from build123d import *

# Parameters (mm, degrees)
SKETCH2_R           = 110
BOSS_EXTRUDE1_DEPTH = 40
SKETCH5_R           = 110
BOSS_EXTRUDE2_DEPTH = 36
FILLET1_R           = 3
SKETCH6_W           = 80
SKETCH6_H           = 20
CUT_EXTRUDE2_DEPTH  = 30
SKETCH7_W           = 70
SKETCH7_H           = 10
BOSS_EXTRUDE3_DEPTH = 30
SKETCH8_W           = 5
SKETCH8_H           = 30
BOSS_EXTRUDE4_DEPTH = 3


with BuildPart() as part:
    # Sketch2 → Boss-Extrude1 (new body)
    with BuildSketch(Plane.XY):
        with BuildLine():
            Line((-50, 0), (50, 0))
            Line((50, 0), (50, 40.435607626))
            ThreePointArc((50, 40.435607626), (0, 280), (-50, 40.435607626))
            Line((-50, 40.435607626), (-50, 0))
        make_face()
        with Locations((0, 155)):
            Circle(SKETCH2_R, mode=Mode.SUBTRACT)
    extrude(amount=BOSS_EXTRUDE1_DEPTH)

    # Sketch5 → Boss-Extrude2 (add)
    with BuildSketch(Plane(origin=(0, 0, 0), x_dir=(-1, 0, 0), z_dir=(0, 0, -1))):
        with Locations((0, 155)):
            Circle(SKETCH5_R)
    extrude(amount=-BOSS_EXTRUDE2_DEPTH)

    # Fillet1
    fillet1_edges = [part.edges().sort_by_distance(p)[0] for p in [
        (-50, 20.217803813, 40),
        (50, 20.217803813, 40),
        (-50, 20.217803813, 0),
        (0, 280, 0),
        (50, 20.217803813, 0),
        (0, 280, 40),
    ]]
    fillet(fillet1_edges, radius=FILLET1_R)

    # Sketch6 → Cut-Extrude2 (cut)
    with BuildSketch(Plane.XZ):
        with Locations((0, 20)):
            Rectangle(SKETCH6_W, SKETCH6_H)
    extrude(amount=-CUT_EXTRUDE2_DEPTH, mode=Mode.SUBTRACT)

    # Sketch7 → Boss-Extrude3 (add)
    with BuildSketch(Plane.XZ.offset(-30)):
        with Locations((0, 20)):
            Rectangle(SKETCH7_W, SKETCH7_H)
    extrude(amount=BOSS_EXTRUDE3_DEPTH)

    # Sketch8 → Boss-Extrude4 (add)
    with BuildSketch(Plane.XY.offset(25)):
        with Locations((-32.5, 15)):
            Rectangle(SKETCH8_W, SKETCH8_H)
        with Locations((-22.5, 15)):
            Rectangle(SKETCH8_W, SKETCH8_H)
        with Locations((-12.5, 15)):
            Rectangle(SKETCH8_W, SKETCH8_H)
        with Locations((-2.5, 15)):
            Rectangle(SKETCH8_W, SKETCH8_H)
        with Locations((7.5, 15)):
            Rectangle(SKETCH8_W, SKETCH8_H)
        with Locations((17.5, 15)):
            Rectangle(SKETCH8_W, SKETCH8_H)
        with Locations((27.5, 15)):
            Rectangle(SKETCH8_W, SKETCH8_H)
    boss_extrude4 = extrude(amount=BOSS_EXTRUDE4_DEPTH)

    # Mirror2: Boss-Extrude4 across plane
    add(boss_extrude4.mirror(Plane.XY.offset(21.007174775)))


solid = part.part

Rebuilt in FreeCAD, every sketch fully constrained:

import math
import FreeCAD as App
import Part
import Sketcher
from FreeCAD import Vector
Q = App.Units.Quantity


def edges_at(feature, points):
    """Names of the edges that pass closest to the given points."""
    edges = feature.Shape.Edges
    near = lambda p: min(range(len(edges)), key=lambda i: edges[i].distToShape(Part.Vertex(*p))[0])
    return sorted({f"Edge{near(p) + 1}" for p in points})

doc = App.newDocument("Part")
body = doc.addObject("PartDesign::Body", "Body")

sketch1 = body.newObject("Sketcher::SketchObject", "Sketch")
sketch1.AttachmentSupport = (doc.getObject("XY_Plane"), [""])
sketch1.MapMode = "FlatFace"
sketch1.addGeometry(Part.LineSegment(Vector(-50, 0, 0), Vector(50, 0, 0)), False)
sketch1.addGeometry(Part.LineSegment(Vector(50, 0, 0), Vector(50, 40.435608, 0)), False)
sketch1.addGeometry(Part.ArcOfCircle(Part.Circle(Vector(0, 155, 0), Vector(0, 0, 1), 125), math.radians(-66.421822), math.radians(246.421822)), False)
sketch1.addGeometry(Part.LineSegment(Vector(-50, 40.435608, 0), Vector(-50, 0, 0)), False)
sketch1.addGeometry(Part.Circle(Vector(0, 155, 0), Vector(0, 0, 1), 110), False)
sketch1.addConstraint(Sketcher.Constraint("Coincident", 0, 2, 1, 1))
sketch1.addConstraint(Sketcher.Constraint("Coincident", 1, 2, 2, 1))
sketch1.addConstraint(Sketcher.Constraint("Coincident", 2, 2, 3, 1))
sketch1.addConstraint(Sketcher.Constraint("Coincident", 3, 2, 0, 1))
sketch1.addConstraint(Sketcher.Constraint("Horizontal", 0))
sketch1.addConstraint(Sketcher.Constraint("Vertical", 1))
sketch1.addConstraint(Sketcher.Constraint("Vertical", 3))
sketch1.addConstraint(Sketcher.Constraint("Coincident", 4, 3, 2, 3))
sketch1.addConstraint(Sketcher.Constraint("Symmetric", 0, 2, 3, 2, -1, 1))
sketch1.addConstraint(Sketcher.Constraint("PointOnObject", 2, 3, -2))
sketch1.addConstraint(Sketcher.Constraint("Diameter", 4, Q("220 mm")))
sketch1.addConstraint(Sketcher.Constraint("Radius", 2, Q("125 mm")))
sketch1.addConstraint(Sketcher.Constraint("DistanceX", 0, 1, 0, 2, Q("100 mm")))
sketch1.addConstraint(Sketcher.Constraint("DistanceY", -1, 1, 2, 3, Q("155 mm")))
pad1 = body.newObject("PartDesign::Pad", "Pad")
pad1.Profile = sketch1
pad1.Length = 40

sketch2 = body.newObject("Sketcher::SketchObject", "Sketch001")
sketch2.AttachmentSupport = (doc.getObject("XY_Plane"), [""])
sketch2.MapMode = "FlatFace"
sketch2.addGeometry(Part.Circle(Vector(0, 155, 0), Vector(0, 0, 1), 110), False)
sketch2.addConstraint(Sketcher.Constraint("PointOnObject", 0, 3, -2))
sketch2.addConstraint(Sketcher.Constraint("Diameter", 0, Q("220 mm")))
sketch2.addConstraint(Sketcher.Constraint("DistanceY", -1, 1, 0, 3, Q("155 mm")))
pad2 = body.newObject("PartDesign::Pad", "Pad001")
pad2.Profile = sketch2
pad2.Length = 36
doc.recompute()

fillet = body.newObject("PartDesign::Fillet", "Fillet")
fillet.Base = (pad2, edges_at(pad2, [
    (-50, 20.218, 40),
    (50, 20.218, 40),
    (-50, 20.218, 0),
    (0, 280, 0),
    (50, 20.218, 0),
    (0, 280, 40),
]))
fillet.Radius = 3

sketch3 = body.newObject("Sketcher::SketchObject", "Sketch002")
sketch3.AttachmentSupport = (doc.getObject("XZ_Plane"), [""])
sketch3.MapMode = "FlatFace"
sketch3.addGeometry(Part.LineSegment(Vector(-40, 30, 0), Vector(-40, 10, 0)), False)
sketch3.addGeometry(Part.LineSegment(Vector(-40, 10, 0), Vector(40, 10, 0)), False)
sketch3.addGeometry(Part.LineSegment(Vector(40, 10, 0), Vector(40, 30, 0)), False)
sketch3.addGeometry(Part.LineSegment(Vector(40, 30, 0), Vector(-40, 30, 0)), False)
sketch3.addConstraint(Sketcher.Constraint("Coincident", 0, 2, 1, 1))
sketch3.addConstraint(Sketcher.Constraint("Coincident", 1, 2, 2, 1))
sketch3.addConstraint(Sketcher.Constraint("Coincident", 2, 2, 3, 1))
sketch3.addConstraint(Sketcher.Constraint("Coincident", 3, 2, 0, 1))
sketch3.addConstraint(Sketcher.Constraint("Vertical", 0))
sketch3.addConstraint(Sketcher.Constraint("Horizontal", 1))
sketch3.addConstraint(Sketcher.Constraint("Vertical", 2))
sketch3.addConstraint(Sketcher.Constraint("Horizontal", 3))
sketch3.addConstraint(Sketcher.Constraint("DistanceX", 1, 1, 1, 2, Q("80 mm")))
sketch3.addConstraint(Sketcher.Constraint("DistanceY", 0, 2, 0, 1, Q("20 mm")))
sketch3.addConstraint(Sketcher.Constraint("DistanceX", 0, 2, -1, 1, Q("40 mm")))
sketch3.addConstraint(Sketcher.Constraint("DistanceY", -1, 1, 0, 2, Q("10 mm")))
pocket1 = body.newObject("PartDesign::Pocket", "Pocket")
pocket1.Profile = sketch3
pocket1.Length = 30

sketch4 = body.newObject("Sketcher::SketchObject", "Sketch003")
sketch4.AttachmentSupport = (doc.getObject("XZ_Plane"), [""])
sketch4.MapMode = "FlatFace"
sketch4.AttachmentOffset = App.Placement(Vector(0, 0, -30), App.Rotation())
sketch4.addGeometry(Part.LineSegment(Vector(-35, 25, 0), Vector(-35, 15, 0)), False)
sketch4.addGeometry(Part.LineSegment(Vector(-35, 15, 0), Vector(35, 15, 0)), False)
sketch4.addGeometry(Part.LineSegment(Vector(35, 15, 0), Vector(35, 25, 0)), False)
sketch4.addGeometry(Part.LineSegment(Vector(35, 25, 0), Vector(-35, 25, 0)), False)
sketch4.addConstraint(Sketcher.Constraint("Coincident", 0, 2, 1, 1))
sketch4.addConstraint(Sketcher.Constraint("Coincident", 1, 2, 2, 1))
sketch4.addConstraint(Sketcher.Constraint("Coincident", 2, 2, 3, 1))
sketch4.addConstraint(Sketcher.Constraint("Coincident", 3, 2, 0, 1))
sketch4.addConstraint(Sketcher.Constraint("Vertical", 0))
sketch4.addConstraint(Sketcher.Constraint("Horizontal", 1))
sketch4.addConstraint(Sketcher.Constraint("Vertical", 2))
sketch4.addConstraint(Sketcher.Constraint("Horizontal", 3))
sketch4.addConstraint(Sketcher.Constraint("DistanceX", 1, 1, 1, 2, Q("70 mm")))
sketch4.addConstraint(Sketcher.Constraint("DistanceY", 0, 2, 0, 1, Q("10 mm")))
sketch4.addConstraint(Sketcher.Constraint("DistanceX", 0, 2, -1, 1, Q("35 mm")))
sketch4.addConstraint(Sketcher.Constraint("DistanceY", -1, 1, 0, 2, Q("15 mm")))
pad3 = body.newObject("PartDesign::Pad", "Pad002")
pad3.Profile = sketch4
pad3.Length = 30

sketch5 = body.newObject("Sketcher::SketchObject", "Sketch004")
sketch5.AttachmentSupport = (doc.getObject("XY_Plane"), [""])
sketch5.MapMode = "FlatFace"
sketch5.AttachmentOffset = App.Placement(Vector(0, 0, 25), App.Rotation())
sketch5.addGeometry(Part.LineSegment(Vector(-35, 30, 0), Vector(-35, 0, 0)), False)
sketch5.addGeometry(Part.LineSegment(Vector(-35, 0, 0), Vector(-30, 0, 0)), False)
sketch5.addGeometry(Part.LineSegment(Vector(-30, 0, 0), Vector(-30, 30, 0)), False)
sketch5.addGeometry(Part.LineSegment(Vector(-30, 30, 0), Vector(-35, 30, 0)), False)
sketch5.addGeometry(Part.LineSegment(Vector(-25, 30, 0), Vector(-25, 0, 0)), False)
sketch5.addGeometry(Part.LineSegment(Vector(-25, 0, 0), Vector(-20, 0, 0)), False)
sketch5.addGeometry(Part.LineSegment(Vector(-20, 0, 0), Vector(-20, 30, 0)), False)
sketch5.addGeometry(Part.LineSegment(Vector(-20, 30, 0), Vector(-25, 30, 0)), False)
sketch5.addGeometry(Part.LineSegment(Vector(-15, 30, 0), Vector(-15, 0, 0)), False)
sketch5.addGeometry(Part.LineSegment(Vector(-15, 0, 0), Vector(-10, 0, 0)), False)
sketch5.addGeometry(Part.LineSegment(Vector(-10, 0, 0), Vector(-10, 30, 0)), False)
sketch5.addGeometry(Part.LineSegment(Vector(-10, 30, 0), Vector(-15, 30, 0)), False)
sketch5.addGeometry(Part.LineSegment(Vector(-5, 30, 0), Vector(-5, 0, 0)), False)
sketch5.addGeometry(Part.LineSegment(Vector(-5, 0, 0), Vector(0, 0, 0)), False)
sketch5.addGeometry(Part.LineSegment(Vector(0, 0, 0), Vector(0, 30, 0)), False)
sketch5.addGeometry(Part.LineSegment(Vector(0, 30, 0), Vector(-5, 30, 0)), False)
sketch5.addGeometry(Part.LineSegment(Vector(5, 30, 0), Vector(5, 0, 0)), False)
sketch5.addGeometry(Part.LineSegment(Vector(5, 0, 0), Vector(10, 0, 0)), False)
sketch5.addGeometry(Part.LineSegment(Vector(10, 0, 0), Vector(10, 30, 0)), False)
sketch5.addGeometry(Part.LineSegment(Vector(10, 30, 0), Vector(5, 30, 0)), False)
sketch5.addGeometry(Part.LineSegment(Vector(15, 30, 0), Vector(15, 0, 0)), False)
sketch5.addGeometry(Part.LineSegment(Vector(15, 0, 0), Vector(20, 0, 0)), False)
sketch5.addGeometry(Part.LineSegment(Vector(20, 0, 0), Vector(20, 30, 0)), False)
sketch5.addGeometry(Part.LineSegment(Vector(20, 30, 0), Vector(15, 30, 0)), False)
sketch5.addGeometry(Part.LineSegment(Vector(25, 30, 0), Vector(25, 0, 0)), False)
sketch5.addGeometry(Part.LineSegment(Vector(25, 0, 0), Vector(30, 0, 0)), False)
sketch5.addGeometry(Part.LineSegment(Vector(30, 0, 0), Vector(30, 30, 0)), False)
sketch5.addGeometry(Part.LineSegment(Vector(30, 30, 0), Vector(25, 30, 0)), False)
sketch5.addConstraint(Sketcher.Constraint("Coincident", 0, 2, 1, 1))
sketch5.addConstraint(Sketcher.Constraint("Coincident", 1, 2, 2, 1))
sketch5.addConstraint(Sketcher.Constraint("Coincident", 2, 2, 3, 1))
sketch5.addConstraint(Sketcher.Constraint("Coincident", 3, 2, 0, 1))
sketch5.addConstraint(Sketcher.Constraint("Coincident", 4, 2, 5, 1))
sketch5.addConstraint(Sketcher.Constraint("Coincident", 5, 2, 6, 1))
sketch5.addConstraint(Sketcher.Constraint("Coincident", 6, 2, 7, 1))
sketch5.addConstraint(Sketcher.Constraint("Coincident", 7, 2, 4, 1))
sketch5.addConstraint(Sketcher.Constraint("Coincident", 8, 2, 9, 1))
sketch5.addConstraint(Sketcher.Constraint("Coincident", 9, 2, 10, 1))
sketch5.addConstraint(Sketcher.Constraint("Coincident", 10, 2, 11, 1))
sketch5.addConstraint(Sketcher.Constraint("Coincident", 11, 2, 8, 1))
sketch5.addConstraint(Sketcher.Constraint("Coincident", 12, 2, 13, 1))
sketch5.addConstraint(Sketcher.Constraint("Coincident", 13, 2, 14, 1))
sketch5.addConstraint(Sketcher.Constraint("Coincident", 14, 2, 15, 1))
sketch5.addConstraint(Sketcher.Constraint("Coincident", 15, 2, 12, 1))
sketch5.addConstraint(Sketcher.Constraint("Coincident", 16, 2, 17, 1))
sketch5.addConstraint(Sketcher.Constraint("Coincident", 17, 2, 18, 1))
sketch5.addConstraint(Sketcher.Constraint("Coincident", 18, 2, 19, 1))
sketch5.addConstraint(Sketcher.Constraint("Coincident", 19, 2, 16, 1))
sketch5.addConstraint(Sketcher.Constraint("Coincident", 20, 2, 21, 1))
sketch5.addConstraint(Sketcher.Constraint("Coincident", 21, 2, 22, 1))
sketch5.addConstraint(Sketcher.Constraint("Coincident", 22, 2, 23, 1))
sketch5.addConstraint(Sketcher.Constraint("Coincident", 23, 2, 20, 1))
sketch5.addConstraint(Sketcher.Constraint("Coincident", 24, 2, 25, 1))
sketch5.addConstraint(Sketcher.Constraint("Coincident", 25, 2, 26, 1))
sketch5.addConstraint(Sketcher.Constraint("Coincident", 26, 2, 27, 1))
sketch5.addConstraint(Sketcher.Constraint("Coincident", 27, 2, 24, 1))
sketch5.addConstraint(Sketcher.Constraint("Vertical", 0))
sketch5.addConstraint(Sketcher.Constraint("Horizontal", 1))
sketch5.addConstraint(Sketcher.Constraint("Vertical", 2))
sketch5.addConstraint(Sketcher.Constraint("Horizontal", 3))
sketch5.addConstraint(Sketcher.Constraint("Vertical", 4))
sketch5.addConstraint(Sketcher.Constraint("Horizontal", 5))
sketch5.addConstraint(Sketcher.Constraint("Vertical", 6))
sketch5.addConstraint(Sketcher.Constraint("Horizontal", 7))
sketch5.addConstraint(Sketcher.Constraint("Vertical", 8))
sketch5.addConstraint(Sketcher.Constraint("Horizontal", 9))
sketch5.addConstraint(Sketcher.Constraint("Vertical", 10))
sketch5.addConstraint(Sketcher.Constraint("Horizontal", 11))
sketch5.addConstraint(Sketcher.Constraint("Vertical", 12))
sketch5.addConstraint(Sketcher.Constraint("Horizontal", 13))
sketch5.addConstraint(Sketcher.Constraint("Vertical", 14))
sketch5.addConstraint(Sketcher.Constraint("Horizontal", 15))
sketch5.addConstraint(Sketcher.Constraint("Vertical", 16))
sketch5.addConstraint(Sketcher.Constraint("Horizontal", 17))
sketch5.addConstraint(Sketcher.Constraint("Vertical", 18))
sketch5.addConstraint(Sketcher.Constraint("Horizontal", 19))
sketch5.addConstraint(Sketcher.Constraint("Vertical", 20))
sketch5.addConstraint(Sketcher.Constraint("Horizontal", 21))
sketch5.addConstraint(Sketcher.Constraint("Vertical", 22))
sketch5.addConstraint(Sketcher.Constraint("Horizontal", 23))
sketch5.addConstraint(Sketcher.Constraint("Vertical", 24))
sketch5.addConstraint(Sketcher.Constraint("Horizontal", 25))
sketch5.addConstraint(Sketcher.Constraint("Vertical", 26))
sketch5.addConstraint(Sketcher.Constraint("Horizontal", 27))
sketch5.addConstraint(Sketcher.Constraint("Coincident", 13, 2, -1, 1))
sketch5.addConstraint(Sketcher.Constraint("Symmetric", 12, 2, 16, 2, -1, 1))
sketch5.addConstraint(Sketcher.Constraint("Symmetric", 9, 2, 17, 2, -1, 1))
sketch5.addConstraint(Sketcher.Constraint("Symmetric", 8, 2, 20, 2, -1, 1))
sketch5.addConstraint(Sketcher.Constraint("Symmetric", 5, 2, 21, 2, -1, 1))
sketch5.addConstraint(Sketcher.Constraint("Symmetric", 4, 2, 24, 2, -1, 1))
sketch5.addConstraint(Sketcher.Constraint("Symmetric", 1, 2, 25, 2, -1, 1))
sketch5.addConstraint(Sketcher.Constraint("Horizontal", 3, 2, 6, 2))
sketch5.addConstraint(Sketcher.Constraint("Horizontal", 7, 2, 10, 2))
sketch5.addConstraint(Sketcher.Constraint("Horizontal", 11, 2, 14, 2))
sketch5.addConstraint(Sketcher.Constraint("Horizontal", 15, 2, 18, 2))
sketch5.addConstraint(Sketcher.Constraint("Horizontal", 19, 2, 22, 2))
sketch5.addConstraint(Sketcher.Constraint("Horizontal", 23, 2, 26, 2))
sketch5.addConstraint(Sketcher.Constraint("Equal", 3, 5))
sketch5.addConstraint(Sketcher.Constraint("Equal", 7, 9))
sketch5.addConstraint(Sketcher.Constraint("Equal", 11, 13))
sketch5.addConstraint(Sketcher.Constraint("Equal", 15, 17))
sketch5.addConstraint(Sketcher.Constraint("Equal", 19, 21))
sketch5.addConstraint(Sketcher.Constraint("Equal", 23, 25))
sketch5.addConstraint(Sketcher.Constraint("DistanceX", 1, 1, 1, 2, Q("5 mm")))
sketch5.addConstraint(Sketcher.Constraint("DistanceY", 0, 2, 0, 1, Q("30 mm")))
pad4 = body.newObject("PartDesign::Pad", "Pad003")
pad4.Profile = sketch5
pad4.Length = 3
doc.recompute()

datumplane = body.newObject("PartDesign::Plane", "DatumPlane")
datumplane.AttachmentSupport = (doc.getObject("XY_Plane"), [""])
datumplane.MapMode = "FlatFace"
datumplane.AttachmentOffset = App.Placement(Vector(0, 0, 21.007175), App.Rotation())
mirrored = body.newObject("PartDesign::Mirrored", "Mirrored")
mirrored.Originals = [pad4]
mirrored.MirrorPlane = (datumplane, [""])
body.Tip = mirrored

doc.recompute()
